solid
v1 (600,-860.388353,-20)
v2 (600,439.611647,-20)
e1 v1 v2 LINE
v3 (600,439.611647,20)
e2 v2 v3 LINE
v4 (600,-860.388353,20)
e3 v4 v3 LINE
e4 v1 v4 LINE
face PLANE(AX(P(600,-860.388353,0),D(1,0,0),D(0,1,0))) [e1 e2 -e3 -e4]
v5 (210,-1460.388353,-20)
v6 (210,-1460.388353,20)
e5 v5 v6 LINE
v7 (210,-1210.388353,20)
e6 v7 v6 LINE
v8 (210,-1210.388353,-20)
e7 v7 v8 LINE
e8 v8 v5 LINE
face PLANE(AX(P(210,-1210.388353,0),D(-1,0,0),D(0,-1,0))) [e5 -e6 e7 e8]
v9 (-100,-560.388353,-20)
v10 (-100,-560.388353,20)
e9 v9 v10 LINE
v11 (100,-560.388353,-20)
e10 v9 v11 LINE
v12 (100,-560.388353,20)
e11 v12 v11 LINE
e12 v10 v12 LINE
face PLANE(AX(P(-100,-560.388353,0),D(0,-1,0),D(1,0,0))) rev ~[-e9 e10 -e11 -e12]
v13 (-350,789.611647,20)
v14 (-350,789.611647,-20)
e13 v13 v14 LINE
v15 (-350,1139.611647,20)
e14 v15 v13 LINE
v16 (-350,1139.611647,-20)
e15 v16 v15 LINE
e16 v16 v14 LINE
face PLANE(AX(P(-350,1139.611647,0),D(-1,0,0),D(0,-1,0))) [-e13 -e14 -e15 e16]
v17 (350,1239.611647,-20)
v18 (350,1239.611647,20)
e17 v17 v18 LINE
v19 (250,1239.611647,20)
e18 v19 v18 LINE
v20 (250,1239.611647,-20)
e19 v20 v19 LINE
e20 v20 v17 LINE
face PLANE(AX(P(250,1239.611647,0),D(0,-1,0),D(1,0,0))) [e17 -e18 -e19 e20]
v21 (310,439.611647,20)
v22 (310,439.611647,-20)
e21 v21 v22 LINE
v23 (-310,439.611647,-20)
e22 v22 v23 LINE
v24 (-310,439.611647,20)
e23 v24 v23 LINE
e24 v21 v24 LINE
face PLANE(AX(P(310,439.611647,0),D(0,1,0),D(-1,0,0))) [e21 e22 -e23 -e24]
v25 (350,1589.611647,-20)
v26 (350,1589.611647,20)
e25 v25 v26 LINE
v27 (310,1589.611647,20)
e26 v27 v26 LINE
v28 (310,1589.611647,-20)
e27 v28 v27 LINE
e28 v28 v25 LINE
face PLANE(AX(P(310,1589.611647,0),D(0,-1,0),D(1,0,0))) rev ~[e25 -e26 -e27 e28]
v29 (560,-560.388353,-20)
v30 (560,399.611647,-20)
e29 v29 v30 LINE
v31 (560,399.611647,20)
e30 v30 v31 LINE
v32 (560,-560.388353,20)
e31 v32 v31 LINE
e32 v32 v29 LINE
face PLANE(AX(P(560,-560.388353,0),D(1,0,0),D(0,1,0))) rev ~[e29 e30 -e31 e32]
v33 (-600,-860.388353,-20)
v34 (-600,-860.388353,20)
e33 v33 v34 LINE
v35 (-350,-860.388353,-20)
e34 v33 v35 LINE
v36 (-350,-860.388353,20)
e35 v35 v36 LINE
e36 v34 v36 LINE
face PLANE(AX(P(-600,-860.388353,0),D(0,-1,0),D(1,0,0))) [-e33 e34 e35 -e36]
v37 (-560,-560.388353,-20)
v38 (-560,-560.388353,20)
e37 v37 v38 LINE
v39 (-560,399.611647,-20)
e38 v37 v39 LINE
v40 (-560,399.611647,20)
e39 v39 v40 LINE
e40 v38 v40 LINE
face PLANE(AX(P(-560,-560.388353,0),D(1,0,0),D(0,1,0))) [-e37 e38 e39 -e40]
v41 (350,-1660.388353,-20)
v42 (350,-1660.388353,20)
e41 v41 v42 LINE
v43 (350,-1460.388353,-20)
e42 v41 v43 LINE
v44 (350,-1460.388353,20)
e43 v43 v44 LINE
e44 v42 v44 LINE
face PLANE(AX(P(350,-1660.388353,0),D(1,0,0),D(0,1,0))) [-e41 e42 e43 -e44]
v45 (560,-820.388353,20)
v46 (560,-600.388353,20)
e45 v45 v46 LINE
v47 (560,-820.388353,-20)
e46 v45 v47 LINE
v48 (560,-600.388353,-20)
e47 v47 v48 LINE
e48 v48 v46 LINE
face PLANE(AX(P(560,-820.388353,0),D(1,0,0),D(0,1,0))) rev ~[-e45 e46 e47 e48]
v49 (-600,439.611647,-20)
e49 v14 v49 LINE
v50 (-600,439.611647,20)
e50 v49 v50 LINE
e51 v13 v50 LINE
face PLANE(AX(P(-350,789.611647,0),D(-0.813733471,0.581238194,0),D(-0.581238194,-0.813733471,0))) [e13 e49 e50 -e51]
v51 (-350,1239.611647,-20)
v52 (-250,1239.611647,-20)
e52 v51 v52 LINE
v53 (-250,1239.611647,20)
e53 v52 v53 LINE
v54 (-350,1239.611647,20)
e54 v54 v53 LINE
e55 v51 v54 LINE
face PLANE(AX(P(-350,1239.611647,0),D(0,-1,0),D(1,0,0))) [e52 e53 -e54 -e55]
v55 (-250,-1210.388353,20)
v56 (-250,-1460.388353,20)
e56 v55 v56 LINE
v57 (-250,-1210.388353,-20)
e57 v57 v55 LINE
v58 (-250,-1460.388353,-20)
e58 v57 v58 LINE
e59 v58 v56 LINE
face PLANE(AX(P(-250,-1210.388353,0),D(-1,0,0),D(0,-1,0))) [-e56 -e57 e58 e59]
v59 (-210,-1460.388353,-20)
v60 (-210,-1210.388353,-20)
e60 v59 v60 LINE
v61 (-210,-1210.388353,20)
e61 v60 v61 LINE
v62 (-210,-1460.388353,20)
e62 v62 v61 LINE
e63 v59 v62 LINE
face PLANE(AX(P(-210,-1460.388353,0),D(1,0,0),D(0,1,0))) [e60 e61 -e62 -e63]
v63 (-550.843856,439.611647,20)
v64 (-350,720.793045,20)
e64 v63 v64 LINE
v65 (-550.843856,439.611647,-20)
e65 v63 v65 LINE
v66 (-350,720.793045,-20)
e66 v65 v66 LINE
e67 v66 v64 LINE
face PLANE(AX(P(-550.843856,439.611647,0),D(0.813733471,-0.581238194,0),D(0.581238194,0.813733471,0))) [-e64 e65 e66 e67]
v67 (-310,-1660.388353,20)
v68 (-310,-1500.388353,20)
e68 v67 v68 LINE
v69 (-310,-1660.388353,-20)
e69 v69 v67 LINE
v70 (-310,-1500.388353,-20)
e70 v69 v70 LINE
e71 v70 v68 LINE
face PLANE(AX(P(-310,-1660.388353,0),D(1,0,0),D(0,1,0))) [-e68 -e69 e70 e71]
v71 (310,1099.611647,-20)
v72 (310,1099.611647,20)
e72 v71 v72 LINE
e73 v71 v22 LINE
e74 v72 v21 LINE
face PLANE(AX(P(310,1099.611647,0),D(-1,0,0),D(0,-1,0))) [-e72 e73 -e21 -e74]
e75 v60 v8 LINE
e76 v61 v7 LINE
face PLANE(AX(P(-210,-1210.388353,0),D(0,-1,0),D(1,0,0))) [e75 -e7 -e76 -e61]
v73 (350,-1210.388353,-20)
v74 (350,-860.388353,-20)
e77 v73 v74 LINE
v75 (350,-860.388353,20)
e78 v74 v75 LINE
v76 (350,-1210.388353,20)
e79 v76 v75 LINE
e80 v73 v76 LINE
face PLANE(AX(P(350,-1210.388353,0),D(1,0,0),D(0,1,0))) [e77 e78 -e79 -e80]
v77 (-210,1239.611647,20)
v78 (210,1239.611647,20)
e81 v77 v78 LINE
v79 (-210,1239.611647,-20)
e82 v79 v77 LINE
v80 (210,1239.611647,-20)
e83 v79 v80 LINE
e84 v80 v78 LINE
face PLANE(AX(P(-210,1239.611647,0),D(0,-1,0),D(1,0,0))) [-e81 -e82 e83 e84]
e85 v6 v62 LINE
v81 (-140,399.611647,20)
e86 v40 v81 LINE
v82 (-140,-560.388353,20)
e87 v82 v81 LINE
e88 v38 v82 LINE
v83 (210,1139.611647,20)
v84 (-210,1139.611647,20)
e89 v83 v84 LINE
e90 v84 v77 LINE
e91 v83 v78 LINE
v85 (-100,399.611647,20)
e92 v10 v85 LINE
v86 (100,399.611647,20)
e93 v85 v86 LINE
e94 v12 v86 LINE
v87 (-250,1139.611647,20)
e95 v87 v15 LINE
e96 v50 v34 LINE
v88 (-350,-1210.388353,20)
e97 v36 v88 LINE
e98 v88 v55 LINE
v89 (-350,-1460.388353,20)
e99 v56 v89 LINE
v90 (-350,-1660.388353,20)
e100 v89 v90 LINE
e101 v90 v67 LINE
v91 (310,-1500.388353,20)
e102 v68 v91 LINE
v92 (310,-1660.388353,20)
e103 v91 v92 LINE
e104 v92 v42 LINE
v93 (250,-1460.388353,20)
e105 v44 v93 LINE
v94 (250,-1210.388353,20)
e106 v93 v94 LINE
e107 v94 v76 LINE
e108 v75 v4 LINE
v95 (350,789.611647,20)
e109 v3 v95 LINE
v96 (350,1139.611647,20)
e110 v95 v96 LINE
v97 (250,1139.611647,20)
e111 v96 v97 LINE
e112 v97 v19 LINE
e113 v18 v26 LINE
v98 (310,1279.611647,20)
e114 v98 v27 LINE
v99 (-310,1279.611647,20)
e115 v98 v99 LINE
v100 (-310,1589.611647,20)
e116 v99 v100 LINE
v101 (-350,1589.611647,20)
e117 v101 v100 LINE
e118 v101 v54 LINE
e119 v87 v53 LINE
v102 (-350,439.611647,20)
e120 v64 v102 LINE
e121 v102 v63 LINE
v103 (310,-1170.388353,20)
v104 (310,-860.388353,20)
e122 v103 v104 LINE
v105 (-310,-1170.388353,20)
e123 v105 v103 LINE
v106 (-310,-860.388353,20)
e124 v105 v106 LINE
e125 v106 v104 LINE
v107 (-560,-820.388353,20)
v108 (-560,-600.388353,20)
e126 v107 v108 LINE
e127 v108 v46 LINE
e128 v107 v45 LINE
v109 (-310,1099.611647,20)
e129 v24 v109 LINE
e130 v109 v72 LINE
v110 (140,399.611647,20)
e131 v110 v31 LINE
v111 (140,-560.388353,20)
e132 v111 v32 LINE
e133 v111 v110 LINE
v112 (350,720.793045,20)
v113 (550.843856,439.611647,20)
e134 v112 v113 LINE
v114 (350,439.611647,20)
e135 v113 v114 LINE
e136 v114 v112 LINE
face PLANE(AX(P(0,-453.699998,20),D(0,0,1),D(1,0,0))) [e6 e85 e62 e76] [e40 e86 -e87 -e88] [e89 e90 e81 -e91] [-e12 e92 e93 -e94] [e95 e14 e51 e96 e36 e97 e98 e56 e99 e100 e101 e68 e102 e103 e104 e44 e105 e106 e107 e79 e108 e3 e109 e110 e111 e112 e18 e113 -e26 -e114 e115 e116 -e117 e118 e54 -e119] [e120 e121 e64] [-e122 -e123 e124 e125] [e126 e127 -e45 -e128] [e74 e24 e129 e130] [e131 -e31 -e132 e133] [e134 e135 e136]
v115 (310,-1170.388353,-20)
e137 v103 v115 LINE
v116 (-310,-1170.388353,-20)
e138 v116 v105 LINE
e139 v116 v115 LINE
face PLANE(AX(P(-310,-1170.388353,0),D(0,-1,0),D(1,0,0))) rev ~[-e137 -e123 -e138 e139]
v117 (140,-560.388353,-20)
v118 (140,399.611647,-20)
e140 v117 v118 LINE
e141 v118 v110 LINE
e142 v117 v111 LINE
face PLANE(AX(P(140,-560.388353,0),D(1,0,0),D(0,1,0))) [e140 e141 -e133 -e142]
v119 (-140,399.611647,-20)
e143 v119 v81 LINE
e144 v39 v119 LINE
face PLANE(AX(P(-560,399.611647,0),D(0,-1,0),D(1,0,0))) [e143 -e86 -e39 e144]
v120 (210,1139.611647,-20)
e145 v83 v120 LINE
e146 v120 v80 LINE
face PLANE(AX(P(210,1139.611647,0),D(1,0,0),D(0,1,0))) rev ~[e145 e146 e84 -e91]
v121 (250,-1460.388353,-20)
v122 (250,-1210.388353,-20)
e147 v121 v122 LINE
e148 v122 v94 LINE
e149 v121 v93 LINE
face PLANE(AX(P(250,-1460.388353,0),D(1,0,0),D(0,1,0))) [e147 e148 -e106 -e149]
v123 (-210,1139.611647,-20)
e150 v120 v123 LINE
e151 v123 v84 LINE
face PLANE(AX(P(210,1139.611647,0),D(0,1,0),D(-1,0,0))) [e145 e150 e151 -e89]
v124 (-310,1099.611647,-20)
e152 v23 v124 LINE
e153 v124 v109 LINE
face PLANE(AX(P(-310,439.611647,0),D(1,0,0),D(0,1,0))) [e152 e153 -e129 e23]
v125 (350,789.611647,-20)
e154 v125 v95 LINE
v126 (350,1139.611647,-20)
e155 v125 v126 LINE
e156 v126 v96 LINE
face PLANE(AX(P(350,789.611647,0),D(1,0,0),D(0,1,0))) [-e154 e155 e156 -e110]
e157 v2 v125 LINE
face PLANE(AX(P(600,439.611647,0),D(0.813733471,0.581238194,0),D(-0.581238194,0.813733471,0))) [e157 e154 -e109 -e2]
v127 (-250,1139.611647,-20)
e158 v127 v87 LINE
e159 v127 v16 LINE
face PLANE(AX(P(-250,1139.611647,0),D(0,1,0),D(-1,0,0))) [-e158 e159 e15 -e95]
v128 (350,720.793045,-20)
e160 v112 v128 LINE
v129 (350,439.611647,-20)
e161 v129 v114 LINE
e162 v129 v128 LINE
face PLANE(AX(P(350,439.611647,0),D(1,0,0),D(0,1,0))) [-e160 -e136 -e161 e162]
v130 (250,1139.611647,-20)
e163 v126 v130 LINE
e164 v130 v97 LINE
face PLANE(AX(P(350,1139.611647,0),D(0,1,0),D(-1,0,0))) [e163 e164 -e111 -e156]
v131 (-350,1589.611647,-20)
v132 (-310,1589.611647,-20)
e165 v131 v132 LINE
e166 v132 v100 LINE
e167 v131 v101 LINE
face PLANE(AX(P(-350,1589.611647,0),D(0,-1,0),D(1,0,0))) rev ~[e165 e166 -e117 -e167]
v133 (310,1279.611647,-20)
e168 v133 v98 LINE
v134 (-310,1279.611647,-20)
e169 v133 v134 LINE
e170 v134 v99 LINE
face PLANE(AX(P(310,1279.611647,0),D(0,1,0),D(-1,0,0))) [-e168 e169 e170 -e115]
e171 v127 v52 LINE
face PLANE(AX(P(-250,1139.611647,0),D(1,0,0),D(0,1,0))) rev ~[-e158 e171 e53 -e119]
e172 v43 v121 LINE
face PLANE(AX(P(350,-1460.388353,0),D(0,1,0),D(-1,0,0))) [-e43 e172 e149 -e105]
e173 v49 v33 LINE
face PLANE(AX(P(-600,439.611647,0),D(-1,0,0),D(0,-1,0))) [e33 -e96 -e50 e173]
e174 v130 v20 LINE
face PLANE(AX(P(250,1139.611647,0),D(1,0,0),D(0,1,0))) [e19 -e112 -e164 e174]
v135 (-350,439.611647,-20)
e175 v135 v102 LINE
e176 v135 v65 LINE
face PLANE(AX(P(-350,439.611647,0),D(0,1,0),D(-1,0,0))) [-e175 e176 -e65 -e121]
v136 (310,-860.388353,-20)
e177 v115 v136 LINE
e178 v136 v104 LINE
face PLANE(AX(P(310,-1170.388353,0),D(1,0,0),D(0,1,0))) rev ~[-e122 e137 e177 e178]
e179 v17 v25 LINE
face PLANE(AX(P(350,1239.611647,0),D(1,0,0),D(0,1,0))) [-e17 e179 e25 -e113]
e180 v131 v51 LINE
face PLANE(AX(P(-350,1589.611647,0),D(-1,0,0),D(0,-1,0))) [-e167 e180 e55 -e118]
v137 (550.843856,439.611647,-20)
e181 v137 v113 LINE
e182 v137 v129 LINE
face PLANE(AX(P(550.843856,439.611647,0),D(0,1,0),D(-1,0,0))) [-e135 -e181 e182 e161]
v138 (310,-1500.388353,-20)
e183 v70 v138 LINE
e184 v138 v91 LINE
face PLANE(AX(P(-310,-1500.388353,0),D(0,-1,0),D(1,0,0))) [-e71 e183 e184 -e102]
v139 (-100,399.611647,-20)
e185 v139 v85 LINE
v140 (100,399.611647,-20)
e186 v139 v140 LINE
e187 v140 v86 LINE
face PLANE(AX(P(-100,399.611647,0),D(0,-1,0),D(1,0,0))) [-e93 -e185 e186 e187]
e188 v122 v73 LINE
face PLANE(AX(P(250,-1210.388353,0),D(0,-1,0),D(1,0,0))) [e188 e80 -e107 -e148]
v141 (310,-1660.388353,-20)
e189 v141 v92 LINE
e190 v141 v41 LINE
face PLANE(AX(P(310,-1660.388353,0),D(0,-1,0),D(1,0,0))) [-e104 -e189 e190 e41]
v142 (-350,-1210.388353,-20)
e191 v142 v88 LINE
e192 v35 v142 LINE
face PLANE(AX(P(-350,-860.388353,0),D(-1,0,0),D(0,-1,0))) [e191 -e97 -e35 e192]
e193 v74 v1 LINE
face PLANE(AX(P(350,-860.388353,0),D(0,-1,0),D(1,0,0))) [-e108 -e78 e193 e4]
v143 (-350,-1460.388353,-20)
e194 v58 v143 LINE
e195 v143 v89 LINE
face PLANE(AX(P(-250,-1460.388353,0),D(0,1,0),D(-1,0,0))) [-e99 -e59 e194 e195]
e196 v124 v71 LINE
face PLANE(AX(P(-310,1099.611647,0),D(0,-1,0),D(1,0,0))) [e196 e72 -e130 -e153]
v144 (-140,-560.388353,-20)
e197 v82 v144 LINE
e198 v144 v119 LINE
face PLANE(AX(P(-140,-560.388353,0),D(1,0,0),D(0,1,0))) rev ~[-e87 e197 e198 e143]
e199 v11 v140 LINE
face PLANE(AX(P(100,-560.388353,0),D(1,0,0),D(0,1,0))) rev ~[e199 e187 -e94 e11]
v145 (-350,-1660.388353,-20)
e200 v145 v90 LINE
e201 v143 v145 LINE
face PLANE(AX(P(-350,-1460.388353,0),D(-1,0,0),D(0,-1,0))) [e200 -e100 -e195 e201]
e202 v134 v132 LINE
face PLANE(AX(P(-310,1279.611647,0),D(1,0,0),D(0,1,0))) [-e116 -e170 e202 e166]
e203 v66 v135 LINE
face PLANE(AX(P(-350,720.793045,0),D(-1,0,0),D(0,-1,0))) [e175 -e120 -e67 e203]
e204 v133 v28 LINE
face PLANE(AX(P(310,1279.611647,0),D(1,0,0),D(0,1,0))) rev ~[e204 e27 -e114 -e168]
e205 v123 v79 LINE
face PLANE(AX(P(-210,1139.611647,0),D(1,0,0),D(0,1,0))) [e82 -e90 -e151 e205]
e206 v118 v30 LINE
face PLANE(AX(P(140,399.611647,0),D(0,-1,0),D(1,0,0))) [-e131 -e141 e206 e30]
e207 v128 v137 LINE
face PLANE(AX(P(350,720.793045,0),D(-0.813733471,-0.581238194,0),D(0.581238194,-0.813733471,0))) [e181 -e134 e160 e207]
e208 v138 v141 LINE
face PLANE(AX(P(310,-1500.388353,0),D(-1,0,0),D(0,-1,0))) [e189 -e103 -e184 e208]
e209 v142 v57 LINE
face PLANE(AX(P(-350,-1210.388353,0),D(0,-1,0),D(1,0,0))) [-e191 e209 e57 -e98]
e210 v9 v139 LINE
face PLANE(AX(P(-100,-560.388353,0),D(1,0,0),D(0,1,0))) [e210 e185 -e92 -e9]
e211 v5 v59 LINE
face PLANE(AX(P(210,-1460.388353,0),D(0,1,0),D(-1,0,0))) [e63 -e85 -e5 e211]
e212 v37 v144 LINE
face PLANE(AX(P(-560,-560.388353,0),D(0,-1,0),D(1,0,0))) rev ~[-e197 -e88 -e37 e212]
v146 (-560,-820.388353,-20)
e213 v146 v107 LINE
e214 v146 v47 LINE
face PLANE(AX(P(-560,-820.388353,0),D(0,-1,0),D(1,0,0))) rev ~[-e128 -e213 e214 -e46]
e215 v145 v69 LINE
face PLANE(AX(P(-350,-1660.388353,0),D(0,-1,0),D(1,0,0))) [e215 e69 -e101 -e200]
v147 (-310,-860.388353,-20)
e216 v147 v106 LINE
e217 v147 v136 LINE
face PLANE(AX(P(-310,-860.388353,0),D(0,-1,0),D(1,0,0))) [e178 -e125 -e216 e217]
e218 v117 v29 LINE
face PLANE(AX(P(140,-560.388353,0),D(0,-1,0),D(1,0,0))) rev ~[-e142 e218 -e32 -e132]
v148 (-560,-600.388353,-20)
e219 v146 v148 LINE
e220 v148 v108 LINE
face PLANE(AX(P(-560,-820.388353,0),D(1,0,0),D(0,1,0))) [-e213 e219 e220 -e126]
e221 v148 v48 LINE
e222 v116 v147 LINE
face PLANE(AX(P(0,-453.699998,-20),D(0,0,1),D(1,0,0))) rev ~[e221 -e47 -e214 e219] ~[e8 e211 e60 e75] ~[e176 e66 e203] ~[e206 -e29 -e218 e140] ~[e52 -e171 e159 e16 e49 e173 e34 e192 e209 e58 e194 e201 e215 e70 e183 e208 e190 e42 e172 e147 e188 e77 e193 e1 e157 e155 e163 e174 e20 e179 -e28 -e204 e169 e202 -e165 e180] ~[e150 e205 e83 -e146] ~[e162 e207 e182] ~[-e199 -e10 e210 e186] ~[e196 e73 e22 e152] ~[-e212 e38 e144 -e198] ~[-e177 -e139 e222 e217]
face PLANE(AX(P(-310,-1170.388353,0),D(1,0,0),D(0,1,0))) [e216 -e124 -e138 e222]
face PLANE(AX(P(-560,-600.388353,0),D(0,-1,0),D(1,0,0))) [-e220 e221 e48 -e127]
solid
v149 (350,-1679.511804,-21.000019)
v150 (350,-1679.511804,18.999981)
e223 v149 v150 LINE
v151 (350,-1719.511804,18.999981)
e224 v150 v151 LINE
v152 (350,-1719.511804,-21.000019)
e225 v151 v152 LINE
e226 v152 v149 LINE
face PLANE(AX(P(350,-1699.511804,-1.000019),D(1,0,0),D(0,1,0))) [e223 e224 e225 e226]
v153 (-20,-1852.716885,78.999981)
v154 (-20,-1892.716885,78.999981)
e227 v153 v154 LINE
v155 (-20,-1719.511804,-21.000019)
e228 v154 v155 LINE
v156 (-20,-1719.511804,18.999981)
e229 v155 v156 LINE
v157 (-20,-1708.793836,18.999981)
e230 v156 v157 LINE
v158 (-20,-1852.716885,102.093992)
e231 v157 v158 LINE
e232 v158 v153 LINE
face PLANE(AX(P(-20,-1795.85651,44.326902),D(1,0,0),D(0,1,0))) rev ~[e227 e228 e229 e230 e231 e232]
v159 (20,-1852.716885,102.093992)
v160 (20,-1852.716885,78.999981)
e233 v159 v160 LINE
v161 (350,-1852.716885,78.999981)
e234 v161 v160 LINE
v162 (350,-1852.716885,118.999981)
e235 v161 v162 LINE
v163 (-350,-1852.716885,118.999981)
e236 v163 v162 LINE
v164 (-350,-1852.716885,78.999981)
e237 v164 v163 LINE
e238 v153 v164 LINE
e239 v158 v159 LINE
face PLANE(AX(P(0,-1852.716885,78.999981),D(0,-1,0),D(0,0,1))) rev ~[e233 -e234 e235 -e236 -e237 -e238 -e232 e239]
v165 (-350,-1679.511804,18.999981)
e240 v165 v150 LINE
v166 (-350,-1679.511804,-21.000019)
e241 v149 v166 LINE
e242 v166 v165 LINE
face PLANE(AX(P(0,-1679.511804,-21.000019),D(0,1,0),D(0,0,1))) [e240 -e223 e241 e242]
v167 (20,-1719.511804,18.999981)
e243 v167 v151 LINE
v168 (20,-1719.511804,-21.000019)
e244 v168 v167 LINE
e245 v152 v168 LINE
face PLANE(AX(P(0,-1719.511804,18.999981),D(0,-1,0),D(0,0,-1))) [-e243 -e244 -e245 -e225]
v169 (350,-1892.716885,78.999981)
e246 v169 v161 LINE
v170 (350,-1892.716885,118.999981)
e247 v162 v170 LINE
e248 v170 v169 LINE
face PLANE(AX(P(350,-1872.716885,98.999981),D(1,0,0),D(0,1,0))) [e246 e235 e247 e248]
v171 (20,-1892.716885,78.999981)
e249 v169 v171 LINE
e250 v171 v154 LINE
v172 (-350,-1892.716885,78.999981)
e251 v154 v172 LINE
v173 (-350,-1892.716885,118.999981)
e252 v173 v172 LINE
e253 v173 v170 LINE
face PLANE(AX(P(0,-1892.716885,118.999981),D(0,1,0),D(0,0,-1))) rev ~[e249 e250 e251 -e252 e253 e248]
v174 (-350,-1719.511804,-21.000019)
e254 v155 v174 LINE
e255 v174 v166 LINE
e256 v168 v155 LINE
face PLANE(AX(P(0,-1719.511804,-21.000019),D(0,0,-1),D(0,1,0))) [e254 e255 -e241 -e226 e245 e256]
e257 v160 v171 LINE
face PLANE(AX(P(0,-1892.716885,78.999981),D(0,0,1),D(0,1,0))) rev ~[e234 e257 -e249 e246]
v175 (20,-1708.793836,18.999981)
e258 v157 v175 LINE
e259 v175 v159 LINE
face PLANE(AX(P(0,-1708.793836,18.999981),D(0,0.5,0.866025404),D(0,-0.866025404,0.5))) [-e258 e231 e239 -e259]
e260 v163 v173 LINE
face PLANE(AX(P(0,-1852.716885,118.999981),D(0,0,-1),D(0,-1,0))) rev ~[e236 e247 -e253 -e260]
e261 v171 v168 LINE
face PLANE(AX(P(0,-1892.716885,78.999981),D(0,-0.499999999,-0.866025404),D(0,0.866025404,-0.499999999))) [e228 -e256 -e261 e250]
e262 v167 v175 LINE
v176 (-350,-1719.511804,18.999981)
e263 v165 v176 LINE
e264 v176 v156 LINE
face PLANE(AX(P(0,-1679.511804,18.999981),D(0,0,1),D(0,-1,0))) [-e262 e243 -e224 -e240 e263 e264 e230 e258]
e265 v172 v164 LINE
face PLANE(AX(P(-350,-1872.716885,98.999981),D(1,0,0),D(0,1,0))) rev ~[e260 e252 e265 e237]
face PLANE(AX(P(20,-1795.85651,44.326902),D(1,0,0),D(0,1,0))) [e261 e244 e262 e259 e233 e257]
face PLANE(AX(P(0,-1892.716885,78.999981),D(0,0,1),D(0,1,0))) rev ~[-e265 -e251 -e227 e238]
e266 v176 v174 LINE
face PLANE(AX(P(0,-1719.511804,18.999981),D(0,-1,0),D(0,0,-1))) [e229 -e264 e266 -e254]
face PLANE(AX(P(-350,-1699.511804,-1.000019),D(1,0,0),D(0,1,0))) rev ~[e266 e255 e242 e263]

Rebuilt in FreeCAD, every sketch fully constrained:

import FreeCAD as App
import Part
import Sketcher
Q = App.Units.Quantity

doc = App.newDocument("Part")
body = doc.addObject("PartDesign::Body", "Body")

sketch1 = doc.addObject("Sketcher::SketchObject", "Sketch")
body.addObject(sketch1)
sketch1.AttachmentSupport = (doc.XY_Plane, [""])
sketch1.MapMode = "FlatFace"
sketch1.addGeometry(Part.LineSegment(App.Vector(-350, 790, 0), App.Vector(-600, 440, 0)), False)
sketch1.addGeometry(Part.LineSegment(App.Vector(-600, 440, 0), App.Vector(-600, -860, 0)), False)
sketch1.addGeometry(Part.LineSegment(App.Vector(-600, -860, 0), App.Vector(-350, -860, 0)), False)
sketch1.addGeometry(Part.LineSegment(App.Vector(-350, -860, 0), App.Vector(-350, -1210, 0)), False)
sketch1.addGeometry(Part.LineSegment(App.Vector(-350, -1210, 0), App.Vector(-250, -1210, 0)), False)
sketch1.addGeometry(Part.LineSegment(App.Vector(-250, -1210, 0), App.Vector(-250, -1460, 0)), False)
sketch1.addGeometry(Part.LineSegment(App.Vector(-250, -1460, 0), App.Vector(-350, -1460, 0)), False)
sketch1.addGeometry(Part.LineSegment(App.Vector(-350, -1460, 0), App.Vector(-350, -1660, 0)), False)
sketch1.addGeometry(Part.LineSegment(App.Vector(-350, -1660, 0), App.Vector(-310, -1660, 0)), False)
sketch1.addGeometry(Part.LineSegment(App.Vector(-310, -1660, 0), App.Vector(-310, -1500, 0)), False)
sketch1.addGeometry(Part.LineSegment(App.Vector(-310, -1500, 0), App.Vector(310, -1500, 0)), False)
sketch1.addGeometry(Part.LineSegment(App.Vector(310, -1500, 0), App.Vector(310, -1660, 0)), False)
sketch1.addGeometry(Part.LineSegment(App.Vector(310, -1660, 0), App.Vector(350, -1660, 0)), False)
sketch1.addGeometry(Part.LineSegment(App.Vector(350, -1660, 0), App.Vector(350, -1460, 0)), False)
sketch1.addGeometry(Part.LineSegment(App.Vector(350, -1460, 0), App.Vector(250, -1460, 0)), False)
sketch1.addGeometry(Part.LineSegment(App.Vector(250, -1460, 0), App.Vector(250, -1210, 0)), False)
sketch1.addGeometry(Part.LineSegment(App.Vector(250, -1210, 0), App.Vector(350, -1210, 0)), False)
sketch1.addGeometry(Part.LineSegment(App.Vector(350, -1210, 0), App.Vector(350, -860, 0)), False)
sketch1.addGeometry(Part.LineSegment(App.Vector(350, -860, 0), App.Vector(600, -860, 0)), False)
sketch1.addGeometry(Part.LineSegment(App.Vector(600, -860, 0), App.Vector(600, 440, 0)), False)
sketch1.addGeometry(Part.LineSegment(App.Vector(600, 440, 0), App.Vector(350, 790, 0)), False)
sketch1.addGeometry(Part.LineSegment(App.Vector(350, 790, 0), App.Vector(350, 1140, 0)), False)
sketch1.addGeometry(Part.LineSegment(App.Vector(350, 1140, 0), App.Vector(250, 1140, 0)), False)
sketch1.addGeometry(Part.LineSegment(App.Vector(250, 1140, 0), App.Vector(250, 1240, 0)), False)
sketch1.addGeometry(Part.LineSegment(App.Vector(250, 1240, 0), App.Vector(350, 1240, 0)), False)
sketch1.addGeometry(Part.LineSegment(App.Vector(350, 1240, 0), App.Vector(350, 1590, 0)), False)
sketch1.addGeometry(Part.LineSegment(App.Vector(350, 1590, 0), App.Vector(310, 1590, 0)), False)
sketch1.addGeometry(Part.LineSegment(App.Vector(310, 1590, 0), App.Vector(310, 1280, 0)), False)
sketch1.addGeometry(Part.LineSegment(App.Vector(310, 1280, 0), App.Vector(-310, 1280, 0)), False)
sketch1.addGeometry(Part.LineSegment(App.Vector(-310, 1280, 0), App.Vector(-310, 1590, 0)), False)
sketch1.addGeometry(Part.LineSegment(App.Vector(-310, 1590, 0), App.Vector(-350, 1590, 0)), False)
sketch1.addGeometry(Part.LineSegment(App.Vector(-350, 1590, 0), App.Vector(-350, 1240, 0)), False)
sketch1.addGeometry(Part.LineSegment(App.Vector(-350, 1240, 0), App.Vector(-250, 1240, 0)), False)
sketch1.addGeometry(Part.LineSegment(App.Vector(-250, 1240, 0), App.Vector(-250, 1140, 0)), False)
sketch1.addGeometry(Part.LineSegment(App.Vector(-250, 1140, 0), App.Vector(-350, 1140, 0)), False)
sketch1.addGeometry(Part.LineSegment(App.Vector(-350, 1140, 0), App.Vector(-350, 790, 0)), False)
sketch1.addGeometry(Part.LineSegment(App.Vector(-310, 440, 0), App.Vector(-310, 1100, 0)), False)
sketch1.addGeometry(Part.LineSegment(App.Vector(-310, 1100, 0), App.Vector(310, 1100, 0)), False)
sketch1.addGeometry(Part.LineSegment(App.Vector(310, 1100, 0), App.Vector(310, 440, 0)), False)
sketch1.addGeometry(Part.LineSegment(App.Vector(310, 440, 0), App.Vector(-310, 440, 0)), False)
sketch1.addGeometry(Part.LineSegment(App.Vector(210, 1140, 0), App.Vector(-210, 1140, 0)), False)
sketch1.addGeometry(Part.LineSegment(App.Vector(-210, 1140, 0), App.Vector(-210, 1240, 0)), False)
sketch1.addGeometry(Part.LineSegment(App.Vector(-210, 1240, 0), App.Vector(210, 1240, 0)), False)
sketch1.addGeometry(Part.LineSegment(App.Vector(210, 1240, 0), App.Vector(210, 1140, 0)), False)
sketch1.addGeometry(Part.LineSegment(App.Vector(210, -1210, 0), App.Vector(210, -1460, 0)), False)
sketch1.addGeometry(Part.LineSegment(App.Vector(210, -1460, 0), App.Vector(-210, -1460, 0)), False)
sketch1.addGeometry(Part.LineSegment(App.Vector(-210, -1460, 0), App.Vector(-210, -1210, 0)), False)
sketch1.addGeometry(Part.LineSegment(App.Vector(-210, -1210, 0), App.Vector(210, -1210, 0)), False)
sketch1.addGeometry(Part.LineSegment(App.Vector(310, -1170, 0), App.Vector(-310, -1170, 0)), False)
sketch1.addGeometry(Part.LineSegment(App.Vector(-310, -1170, 0), App.Vector(-310, -860, 0)), False)
sketch1.addGeometry(Part.LineSegment(App.Vector(-310, -860, 0), App.Vector(310, -860, 0)), False)
sketch1.addGeometry(Part.LineSegment(App.Vector(310, -860, 0), App.Vector(310, -1170, 0)), False)
sketch1.addGeometry(Part.LineSegment(App.Vector(560, -820, 0), App.Vector(-560, -820, 0)), False)
sketch1.addGeometry(Part.LineSegment(App.Vector(-560, -820, 0), App.Vector(-560, -600, 0)), False)
sketch1.addGeometry(Part.LineSegment(App.Vector(-560, -600, 0), App.Vector(560, -600, 0)), False)
sketch1.addGeometry(Part.LineSegment(App.Vector(560, -600, 0), App.Vector(560, -820, 0)), False)
sketch1.addGeometry(Part.LineSegment(App.Vector(-140, -560, 0), App.Vector(-560, -560, 0)), False)
sketch1.addGeometry(Part.LineSegment(App.Vector(-560, -560, 0), App.Vector(-560, 400, 0)), False)
sketch1.addGeometry(Part.LineSegment(App.Vector(-560, 400, 0), App.Vector(-140, 400, 0)), False)
sketch1.addGeometry(Part.LineSegment(App.Vector(-140, 400, 0), App.Vector(-140, -560, 0)), False)
sketch1.addGeometry(Part.LineSegment(App.Vector(-551, 440, 0), App.Vector(-350, 721, 0)), False)
sketch1.addGeometry(Part.LineSegment(App.Vector(-350, 721, 0), App.Vector(-350, 440, 0)), False)
sketch1.addGeometry(Part.LineSegment(App.Vector(-350, 440, 0), App.Vector(-551, 440, 0)), False)
sketch1.addGeometry(Part.LineSegment(App.Vector(100, -560, 0), App.Vector(-100, -560, 0)), False)
sketch1.addGeometry(Part.LineSegment(App.Vector(-100, -560, 0), App.Vector(-100, 400, 0)), False)
sketch1.addGeometry(Part.LineSegment(App.Vector(-100, 400, 0), App.Vector(100, 400, 0)), False)
sketch1.addGeometry(Part.LineSegment(App.Vector(100, 400, 0), App.Vector(100, -560, 0)), False)
sketch1.addGeometry(Part.LineSegment(App.Vector(560, -560, 0), App.Vector(140, -560, 0)), False)
sketch1.addGeometry(Part.LineSegment(App.Vector(140, -560, 0), App.Vector(140, 400, 0)), False)
sketch1.addGeometry(Part.LineSegment(App.Vector(140, 400, 0), App.Vector(560, 400, 0)), False)
sketch1.addGeometry(Part.LineSegment(App.Vector(560, 400, 0), App.Vector(560, -560, 0)), False)
sketch1.addGeometry(Part.LineSegment(App.Vector(350, 721, 0), App.Vector(551, 440, 0)), False)
sketch1.addGeometry(Part.LineSegment(App.Vector(551, 440, 0), App.Vector(350, 440, 0)), False)
sketch1.addGeometry(Part.LineSegment(App.Vector(350, 440, 0), App.Vector(350, 721, 0)), False)
sketch1.addConstraint(Sketcher.Constraint("Coincident", 0, 2, 1, 1))
sketch1.addConstraint(Sketcher.Constraint("Coincident", 1, 2, 2, 1))
sketch1.addConstraint(Sketcher.Constraint("Coincident", 2, 2, 3, 1))
sketch1.addConstraint(Sketcher.Constraint("Coincident", 3, 2, 4, 1))
sketch1.addConstraint(Sketcher.Constraint("Coincident", 4, 2, 5, 1))
sketch1.addConstraint(Sketcher.Constraint("Coincident", 5, 2, 6, 1))
sketch1.addConstraint(Sketcher.Constraint("Coincident", 6, 2, 7, 1))
sketch1.addConstraint(Sketcher.Constraint("Coincident", 7, 2, 8, 1))
sketch1.addConstraint(Sketcher.Constraint("Coincident", 8, 2, 9, 1))
sketch1.addConstraint(Sketcher.Constraint("Coincident", 9, 2, 10, 1))
sketch1.addConstraint(Sketcher.Constraint("Coincident", 10, 2, 11, 1))
sketch1.addConstraint(Sketcher.Constraint("Coincident", 11, 2, 12, 1))
sketch1.addConstraint(Sketcher.Constraint("Coincident", 12, 2, 13, 1))
sketch1.addConstraint(Sketcher.Constraint("Coincident", 13, 2, 14, 1))
sketch1.addConstraint(Sketcher.Constraint("Coincident", 14, 2, 15, 1))
sketch1.addConstraint(Sketcher.Constraint("Coincident", 15, 2, 16, 1))
sketch1.addConstraint(Sketcher.Constraint("Coincident", 16, 2, 17, 1))
sketch1.addConstraint(Sketcher.Constraint("Coincident", 17, 2, 18, 1))
sketch1.addConstraint(Sketcher.Constraint("Coincident", 18, 2, 19, 1))
sketch1.addConstraint(Sketcher.Constraint("Coincident", 19, 2, 20, 1))
sketch1.addConstraint(Sketcher.Constraint("Coincident", 20, 2, 21, 1))
sketch1.addConstraint(Sketcher.Constraint("Coincident", 21, 2, 22, 1))
sketch1.addConstraint(Sketcher.Constraint("Coincident", 22, 2, 23, 1))
sketch1.addConstraint(Sketcher.Constraint("Coincident", 23, 2, 24, 1))
sketch1.addConstraint(Sketcher.Constraint("Coincident", 24, 2, 25, 1))
sketch1.addConstraint(Sketcher.Constraint("Coincident", 25, 2, 26, 1))
sketch1.addConstraint(Sketcher.Constraint("Coincident", 26, 2, 27, 1))
sketch1.addConstraint(Sketcher.Constraint("Coincident", 27, 2, 28, 1))
sketch1.addConstraint(Sketcher.Constraint("Coincident", 28, 2, 29, 1))
sketch1.addConstraint(Sketcher.Constraint("Coincident", 29, 2, 30, 1))
sketch1.addConstraint(Sketcher.Constraint("Coincident", 30, 2, 31, 1))
sketch1.addConstraint(Sketcher.Constraint("Coincident", 31, 2, 32, 1))
sketch1.addConstraint(Sketcher.Constraint("Coincident", 32, 2, 33, 1))
sketch1.addConstraint(Sketcher.Constraint("Coincident", 33, 2, 34, 1))
sketch1.addConstraint(Sketcher.Constraint("Coincident", 34, 2, 35, 1))
sketch1.addConstraint(Sketcher.Constraint("Coincident", 35, 2, 0, 1))
sketch1.addConstraint(Sketcher.Constraint("Coincident", 36, 2, 37, 1))
sketch1.addConstraint(Sketcher.Constraint("Coincident", 37, 2, 38, 1))
sketch1.addConstraint(Sketcher.Constraint("Coincident", 38, 2, 39, 1))
sketch1.addConstraint(Sketcher.Constraint("Coincident", 39, 2, 36, 1))
sketch1.addConstraint(Sketcher.Constraint("Coincident", 40, 2, 41, 1))
sketch1.addConstraint(Sketcher.Constraint("Coincident", 41, 2, 42, 1))
sketch1.addConstraint(Sketcher.Constraint("Coincident", 42, 2, 43, 1))
sketch1.addConstraint(Sketcher.Constraint("Coincident", 43, 2, 40, 1))
sketch1.addConstraint(Sketcher.Constraint("Coincident", 44, 2, 45, 1))
sketch1.addConstraint(Sketcher.Constraint("Coincident", 45, 2, 46, 1))
sketch1.addConstraint(Sketcher.Constraint("Coincident", 46, 2, 47, 1))
sketch1.addConstraint(Sketcher.Constraint("Coincident", 47, 2, 44, 1))
sketch1.addConstraint(Sketcher.Constraint("Coincident", 48, 2, 49, 1))
sketch1.addConstraint(Sketcher.Constraint("Coincident", 49, 2, 50, 1))
sketch1.addConstraint(Sketcher.Constraint("Coincident", 50, 2, 51, 1))
sketch1.addConstraint(Sketcher.Constraint("Coincident", 51, 2, 48, 1))
sketch1.addConstraint(Sketcher.Constraint("Coincident", 52, 2, 53, 1))
sketch1.addConstraint(Sketcher.Constraint("Coincident", 53, 2, 54, 1))
sketch1.addConstraint(Sketcher.Constraint("Coincident", 54, 2, 55, 1))
sketch1.addConstraint(Sketcher.Constraint("Coincident", 55, 2, 52, 1))
sketch1.addConstraint(Sketcher.Constraint("Coincident", 56, 2, 57, 1))
sketch1.addConstraint(Sketcher.Constraint("Coincident", 57, 2, 58, 1))
sketch1.addConstraint(Sketcher.Constraint("Coincident", 58, 2, 59, 1))
sketch1.addConstraint(Sketcher.Constraint("Coincident", 59, 2, 56, 1))
sketch1.addConstraint(Sketcher.Constraint("Coincident", 60, 2, 61, 1))
sketch1.addConstraint(Sketcher.Constraint("Coincident", 61, 2, 62, 1))
sketch1.addConstraint(Sketcher.Constraint("Coincident", 62, 2, 60, 1))
sketch1.addConstraint(Sketcher.Constraint("Coincident", 63, 2, 64, 1))
sketch1.addConstraint(Sketcher.Constraint("Coincident", 64, 2, 65, 1))
sketch1.addConstraint(Sketcher.Constraint("Coincident", 65, 2, 66, 1))
sketch1.addConstraint(Sketcher.Constraint("Coincident", 66, 2, 63, 1))
sketch1.addConstraint(Sketcher.Constraint("Coincident", 67, 2, 68, 1))
sketch1.addConstraint(Sketcher.Constraint("Coincident", 68, 2, 69, 1))
sketch1.addConstraint(Sketcher.Constraint("Coincident", 69, 2, 70, 1))
sketch1.addConstraint(Sketcher.Constraint("Coincident", 70, 2, 67, 1))
sketch1.addConstraint(Sketcher.Constraint("Coincident", 71, 2, 72, 1))
sketch1.addConstraint(Sketcher.Constraint("Coincident", 72, 2, 73, 1))
sketch1.addConstraint(Sketcher.Constraint("Coincident", 73, 2, 71, 1))
sketch1.addConstraint(Sketcher.Constraint("Vertical", 1))
sketch1.addConstraint(Sketcher.Constraint("Horizontal", 2))
sketch1.addConstraint(Sketcher.Constraint("Vertical", 3))
sketch1.addConstraint(Sketcher.Constraint("Horizontal", 4))
sketch1.addConstraint(Sketcher.Constraint("Vertical", 5))
sketch1.addConstraint(Sketcher.Constraint("Horizontal", 6))
sketch1.addConstraint(Sketcher.Constraint("Vertical", 7))
sketch1.addConstraint(Sketcher.Constraint("Horizontal", 8))
sketch1.addConstraint(Sketcher.Constraint("Vertical", 9))
sketch1.addConstraint(Sketcher.Constraint("Horizontal", 10))
sketch1.addConstraint(Sketcher.Constraint("Vertical", 11))
sketch1.addConstraint(Sketcher.Constraint("Horizontal", 12))
sketch1.addConstraint(Sketcher.Constraint("Vertical", 13))
sketch1.addConstraint(Sketcher.Constraint("Horizontal", 14))
sketch1.addConstraint(Sketcher.Constraint("Vertical", 15))
sketch1.addConstraint(Sketcher.Constraint("Horizontal", 16))
sketch1.addConstraint(Sketcher.Constraint("Vertical", 17))
sketch1.addConstraint(Sketcher.Constraint("Horizontal", 18))
sketch1.addConstraint(Sketcher.Constraint("Vertical", 19))
sketch1.addConstraint(Sketcher.Constraint("Vertical", 21))
sketch1.addConstraint(Sketcher.Constraint("Horizontal", 22))
sketch1.addConstraint(Sketcher.Constraint("Vertical", 23))
sketch1.addConstraint(Sketcher.Constraint("Horizontal", 24))
sketch1.addConstraint(Sketcher.Constraint("Vertical", 25))
sketch1.addConstraint(Sketcher.Constraint("Horizontal", 26))
sketch1.addConstraint(Sketcher.Constraint("Vertical", 27))
sketch1.addConstraint(Sketcher.Constraint("Horizontal", 28))
sketch1.addConstraint(Sketcher.Constraint("Vertical", 29))
sketch1.addConstraint(Sketcher.Constraint("Horizontal", 30))
sketch1.addConstraint(Sketcher.Constraint("Vertical", 31))
sketch1.addConstraint(Sketcher.Constraint("Horizontal", 32))
sketch1.addConstraint(Sketcher.Constraint("Vertical", 33))
sketch1.addConstraint(Sketcher.Constraint("Horizontal", 34))
sketch1.addConstraint(Sketcher.Constraint("Vertical", 35))
sketch1.addConstraint(Sketcher.Constraint("Vertical", 36))
sketch1.addConstraint(Sketcher.Constraint("Horizontal", 37))
sketch1.addConstraint(Sketcher.Constraint("Vertical", 38))
sketch1.addConstraint(Sketcher.Constraint("Horizontal", 39))
sketch1.addConstraint(Sketcher.Constraint("Horizontal", 40))
sketch1.addConstraint(Sketcher.Constraint("Vertical", 41))
sketch1.addConstraint(Sketcher.Constraint("Horizontal", 42))
sketch1.addConstraint(Sketcher.Constraint("Vertical", 43))
sketch1.addConstraint(Sketcher.Constraint("Vertical", 44))
sketch1.addConstraint(Sketcher.Constraint("Horizontal", 45))
sketch1.addConstraint(Sketcher.Constraint("Vertical", 46))
sketch1.addConstraint(Sketcher.Constraint("Horizontal", 47))
sketch1.addConstraint(Sketcher.Constraint("Horizontal", 48))
sketch1.addConstraint(Sketcher.Constraint("Vertical", 49))
sketch1.addConstraint(Sketcher.Constraint("Horizontal", 50))
sketch1.addConstraint(Sketcher.Constraint("Vertical", 51))
sketch1.addConstraint(Sketcher.Constraint("Horizontal", 52))
sketch1.addConstraint(Sketcher.Constraint("Vertical", 53))
sketch1.addConstraint(Sketcher.Constraint("Horizontal", 54))
sketch1.addConstraint(Sketcher.Constraint("Vertical", 55))
sketch1.addConstraint(Sketcher.Constraint("Horizontal", 56))
sketch1.addConstraint(Sketcher.Constraint("Vertical", 57))
sketch1.addConstraint(Sketcher.Constraint("Horizontal", 58))
sketch1.addConstraint(Sketcher.Constraint("Vertical", 59))
sketch1.addConstraint(Sketcher.Constraint("Vertical", 61))
sketch1.addConstraint(Sketcher.Constraint("Horizontal", 62))
sketch1.addConstraint(Sketcher.Constraint("Horizontal", 63))
sketch1.addConstraint(Sketcher.Constraint("Vertical", 64))
sketch1.addConstraint(Sketcher.Constraint("Horizontal", 65))
sketch1.addConstraint(Sketcher.Constraint("Vertical", 66))
sketch1.addConstraint(Sketcher.Constraint("Horizontal", 67))
sketch1.addConstraint(Sketcher.Constraint("Vertical", 68))
sketch1.addConstraint(Sketcher.Constraint("Horizontal", 69))
sketch1.addConstraint(Sketcher.Constraint("Vertical", 70))
sketch1.addConstraint(Sketcher.Constraint("Horizontal", 72))
sketch1.addConstraint(Sketcher.Constraint("Vertical", 73))
sketch1.addConstraint(Sketcher.Constraint("Symmetric", 8, 2, 11, 2, -2))
sketch1.addConstraint(Sketcher.Constraint("Symmetric", 6, 2, 13, 2, -2))
sketch1.addConstraint(Sketcher.Constraint("Symmetric", 4, 2, 15, 2, -2))
sketch1.addConstraint(Sketcher.Constraint("Symmetric", 2, 2, 17, 2, -2))
sketch1.addConstraint(Sketcher.Constraint("Symmetric", 0, 2, 19, 2, -2))
sketch1.addConstraint(Sketcher.Constraint("Symmetric", 26, 2, 29, 2, -2))
sketch1.addConstraint(Sketcher.Constraint("Symmetric", 24, 2, 31, 2, -2))
sketch1.addConstraint(Sketcher.Constraint("Symmetric", 22, 2, 33, 2, -2))
sketch1.addConstraint(Sketcher.Constraint("Symmetric", 20, 2, 35, 2, -2))
sketch1.addConstraint(Sketcher.Constraint("Symmetric", 59, 2, 67, 2, -2))
sketch1.addConstraint(Sketcher.Constraint("Symmetric", 57, 2, 69, 2, -2))
sketch1.addConstraint(Sketcher.Constraint("Symmetric", 62, 2, 71, 2, -2))
sketch1.addConstraint(Sketcher.Constraint("Symmetric", 60, 2, 73, 2, -2))
sketch1.addConstraint(Sketcher.Constraint("Parallel", 0, 60))
sketch1.addConstraint(Sketcher.Constraint("Horizontal", 19, 2, 38, 2))
sketch1.addConstraint(Sketcher.Constraint("Horizontal", 34, 2, 40, 2))
sketch1.addConstraint(Sketcher.Constraint("Horizontal", 32, 2, 41, 2))
sketch1.addConstraint(Sketcher.Constraint("Horizontal", 14, 2, 44, 2))
sketch1.addConstraint(Sketcher.Constraint("Horizontal", 16, 2, 46, 2))
sketch1.addConstraint(Sketcher.Constraint("Horizontal", 18, 2, 49, 2))
sketch1.addConstraint(Sketcher.Constraint("Horizontal", 39, 2, 61, 2))
sketch1.addConstraint(Sketcher.Constraint("Horizontal", 59, 2, 63, 2))
sketch1.addConstraint(Sketcher.Constraint("Horizontal", 58, 2, 64, 2))
sketch1.addConstraint(Sketcher.Constraint("Vertical", 3, 2, 6, 2))
sketch1.addConstraint(Sketcher.Constraint("Vertical", 17, 2, 20, 2))
sketch1.addConstraint(Sketcher.Constraint("Vertical", 15, 2, 22, 2))
sketch1.addConstraint(Sketcher.Constraint("Vertical", 21, 2, 24, 2))
sketch1.addConstraint(Sketcher.Constraint("Vertical", 11, 2, 26, 2))
sketch1.addConstraint(Sketcher.Constraint("Vertical", 29, 2, 36, 2))
sketch1.addConstraint(Sketcher.Constraint("Vertical", 27, 2, 37, 2))
sketch1.addConstraint(Sketcher.Constraint("Vertical", 43, 2, 44, 2))
sketch1.addConstraint(Sketcher.Constraint("Vertical", 41, 2, 45, 2))
sketch1.addConstraint(Sketcher.Constraint("Vertical", 39, 2, 48, 2))
sketch1.addConstraint(Sketcher.Constraint("Vertical", 38, 2, 50, 2))
sketch1.addConstraint(Sketcher.Constraint("Vertical", 53, 2, 56, 2))
sketch1.addConstraint(Sketcher.Constraint("Vertical", 35, 2, 60, 2))
sketch1.addConstraint(Sketcher.Constraint("Vertical", 55, 2, 69, 2))
sketch1.addConstraint(Sketcher.Constraint("Equal", 47, 56))
sketch1.addConstraint(Sketcher.Constraint("Equal", 18, 5))
sketch1.addConstraint(Sketcher.Constraint("Equal", 65, 7))
sketch1.addConstraint(Sketcher.Constraint("Equal", 17, 21))
sketch1.addConstraint(Sketcher.Constraint("Equal", 34, 23))
sketch1.addConstraint(Sketcher.Constraint("Equal", 21, 25))
sketch1.addConstraint(Sketcher.Constraint("Equal", 29, 49))
sketch1.addConstraint(Sketcher.Constraint("DistanceX", 2, 1, 2, 2, Q("250 mm")))
sketch1.addConstraint(Sketcher.Constraint("DistanceX", 4, 1, 4, 2, Q("100 mm")))
sketch1.addConstraint(Sketcher.Constraint("DistanceX", 8, 1, 8, 2, Q("40 mm")))
sketch1.addConstraint(Sketcher.Constraint("DistanceX", 10, 1, 10, 2, Q("620 mm")))
sketch1.addConstraint(Sketcher.Constraint("DistanceX", 40, 2, 40, 1, Q("420 mm")))
sketch1.addConstraint(Sketcher.Constraint("DistanceX", 52, 2, 52, 1, Q("1120 mm")))
sketch1.addConstraint(Sketcher.Constraint("DistanceX", 63, 2, 63, 1, Q("200 mm")))
sketch1.addConstraint(Sketcher.Constraint("DistanceY", 1, 2, 1, 1, Q("1300 mm")))
sketch1.addConstraint(Sketcher.Constraint("DistanceY", 3, 2, 3, 1, Q("350 mm")))
sketch1.addConstraint(Sketcher.Constraint("DistanceY", 9, 1, 9, 2, Q("160 mm")))
sketch1.addConstraint(Sketcher.Constraint("DistanceY", 27, 2, 27, 1, Q("310 mm")))
sketch1.addConstraint(Sketcher.Constraint("DistanceY", 36, 1, 36, 2, Q("660 mm")))
sketch1.addConstraint(Sketcher.Constraint("DistanceY", 53, 1, 53, 2, Q("220 mm")))
sketch1.addConstraint(Sketcher.Constraint("DistanceY", 57, 1, 57, 2, Q("960 mm")))
sketch1.addConstraint(Sketcher.Constraint("DistanceX", 40, 2, -1, 1, Q("210 mm")))
sketch1.addConstraint(Sketcher.Constraint("DistanceX", 63, 2, -1, 1, Q("100 mm")))
sketch1.addConstraint(Sketcher.Constraint("DistanceY", 61, 2, 61, 1, Q("281.181398 mm")))
sketch1.addConstraint(Sketcher.Constraint("DistanceX", 62, 2, 62, 1, Q("200.843856 mm")))
sketch1.addConstraint(Sketcher.Constraint("DistanceY", -1, 1, 0, 2, Q("439.611647 mm")))
sketch1.addConstraint(Sketcher.Constraint("DistanceY", 52, 2, -1, 1, Q("820.388353 mm")))
sketch1.addConstraint(Sketcher.Constraint("DistanceY", 56, 2, -1, 1, Q("560.388353 mm")))
pad1 = doc.addObject("PartDesign::Pad", "Pad")
body.addObject(pad1)
pad1.Profile = sketch1
pad1.Length = 40
pad1.Midplane = True
body2 = doc.addObject("PartDesign::Body", "Body001")

sketch2 = doc.addObject("Sketcher::SketchObject", "Sketch001")
body2.addObject(sketch2)
sketch2.AttachmentSupport = (doc.getObject("YZ_Plane001"), [""])
sketch2.MapMode = "FlatFace"
sketch2.addGeometry(Part.LineSegment(App.Vector(-1720, 19, 0), App.Vector(-1709, 19, 0)), False)
sketch2.addGeometry(Part.LineSegment(App.Vector(-1709, 19, 0), App.Vector(-1853, 102, 0)), False)
sketch2.addGeometry(Part.LineSegment(App.Vector(-1853, 102, 0), App.Vector(-1853, 79, 0)), False)
sketch2.addGeometry(Part.LineSegment(App.Vector(-1853, 79, 0), App.Vector(-1893, 79, 0)), False)
sketch2.addGeometry(Part.LineSegment(App.Vector(-1893, 79, 0), App.Vector(-1720, -21, 0)), False)
sketch2.addGeometry(Part.LineSegment(App.Vector(-1720, -21, 0), App.Vector(-1720, 19, 0)), False)
sketch2.addConstraint(Sketcher.Constraint("Coincident", 0, 2, 1, 1))
sketch2.addConstraint(Sketcher.Constraint("Coincident", 1, 2, 2, 1))
sketch2.addConstraint(Sketcher.Constraint("Coincident", 2, 2, 3, 1))
sketch2.addConstraint(Sketcher.Constraint("Coincident", 3, 2, 4, 1))
sketch2.addConstraint(Sketcher.Constraint("Coincident", 4, 2, 5, 1))
sketch2.addConstraint(Sketcher.Constraint("Coincident", 5, 2, 0, 1))
sketch2.addConstraint(Sketcher.Constraint("Horizontal", 0))
sketch2.addConstraint(Sketcher.Constraint("Vertical", 2))
sketch2.addConstraint(Sketcher.Constraint("Horizontal", 3))
sketch2.addConstraint(Sketcher.Constraint("Vertical", 5))
sketch2.addConstraint(Sketcher.Constraint("Parallel", 1, 4))
sketch2.addConstraint(Sketcher.Constraint("Equal", 3, 5))
sketch2.addConstraint(Sketcher.Constraint("DistanceX", 3, 2, 3, 1, Q("40 mm")))
sketch2.addConstraint(Sketcher.Constraint("Angle", 1, Q("150 deg")))
sketch2.addConstraint(Sketcher.Constraint("Distance", 4, Q("200 mm")))
sketch2.addConstraint(Sketcher.Constraint("DistanceY", 2, 2, 2, 1, Q("23.094011 mm")))
sketch2.addConstraint(Sketcher.Constraint("DistanceY", -1, 1, 0, 2, Q("18.999981 mm")))
sketch2.addConstraint(Sketcher.Constraint("DistanceX", 0, 2, -1, 1, Q("1708.793836 mm")))
pad2 = doc.addObject("PartDesign::Pad", "Pad001")
body2.addObject(pad2)
pad2.Profile = sketch2
pad2.Length = 40
pad2.Midplane = True

sketch3 = doc.addObject("Sketcher::SketchObject", "Sketch002")
body2.addObject(sketch3)
sketch3.AttachmentSupport = (doc.getObject("YZ_Plane001"), [""])
sketch3.MapMode = "FlatFace"
sketch3.addGeometry(Part.LineSegment(App.Vector(-1853, 79, 0), App.Vector(-1853, 119, 0)), False)
sketch3.addGeometry(Part.LineSegment(App.Vector(-1853, 119, 0), App.Vector(-1893, 119, 0)), False)
sketch3.addGeometry(Part.LineSegment(App.Vector(-1893, 119, 0), App.Vector(-1893, 79, 0)), False)
sketch3.addGeometry(Part.LineSegment(App.Vector(-1893, 79, 0), App.Vector(-1853, 79, 0)), False)
sketch3.addGeometry(Part.LineSegment(App.Vector(-1680, -21, 0), App.Vector(-1680, 19, 0)), False)
sketch3.addGeometry(Part.LineSegment(App.Vector(-1680, 19, 0), App.Vector(-1720, 19, 0)), False)
sketch3.addGeometry(Part.LineSegment(App.Vector(-1720, 19, 0), App.Vector(-1720, -21, 0)), False)
sketch3.addGeometry(Part.LineSegment(App.Vector(-1720, -21, 0), App.Vector(-1680, -21, 0)), False)
sketch3.addConstraint(Sketcher.Constraint("Coincident", 0, 2, 1, 1))
sketch3.addConstraint(Sketcher.Constraint("Coincident", 1, 2, 2, 1))
sketch3.addConstraint(Sketcher.Constraint("Coincident", 2, 2, 3, 1))
sketch3.addConstraint(Sketcher.Constraint("Coincident", 3, 2, 0, 1))
sketch3.addConstraint(Sketcher.Constraint("Coincident", 4, 2, 5, 1))
sketch3.addConstraint(Sketcher.Constraint("Coincident", 5, 2, 6, 1))
sketch3.addConstraint(Sketcher.Constraint("Coincident", 6, 2, 7, 1))
sketch3.addConstraint(Sketcher.Constraint("Coincident", 7, 2, 4, 1))
sketch3.addConstraint(Sketcher.Constraint("Vertical", 0))
sketch3.addConstraint(Sketcher.Constraint("Horizontal", 1))
sketch3.addConstraint(Sketcher.Constraint("Vertical", 2))
sketch3.addConstraint(Sketcher.Constraint("Horizontal", 3))
sketch3.addConstraint(Sketcher.Constraint("Vertical", 4))
sketch3.addConstraint(Sketcher.Constraint("Horizontal", 5))
sketch3.addConstraint(Sketcher.Constraint("Vertical", 6))
sketch3.addConstraint(Sketcher.Constraint("Horizontal", 7))
sketch3.addConstraint(Sketcher.Constraint("Equal", 3, 5))
sketch3.addConstraint(Sketcher.Constraint("Equal", 7, 0))
sketch3.addConstraint(Sketcher.Constraint("Equal", 2, 4))
sketch3.addConstraint(Sketcher.Constraint("DistanceX", 1, 2, 1, 1, Q("40 mm")))
sketch3.addConstraint(Sketcher.Constraint("DistanceY", 4, 2, 3, 2, Q("60 mm")))
sketch3.addConstraint(Sketcher.Constraint("DistanceY", -1, 1, 0, 2, Q("118.999981 mm")))
sketch3.addConstraint(Sketcher.Constraint("DistanceX", 3, 2, 4, 2, Q("173.205081 mm")))
sketch3.addConstraint(Sketcher.Constraint("DistanceX", 0, 2, -1, 1, Q("1852.716885 mm")))
pad3 = doc.addObject("PartDesign::Pad", "Pad002")
body2.addObject(pad3)
pad3.Profile = sketch3
pad3.Length = 700
pad3.Midplane = True

doc.recompute()
